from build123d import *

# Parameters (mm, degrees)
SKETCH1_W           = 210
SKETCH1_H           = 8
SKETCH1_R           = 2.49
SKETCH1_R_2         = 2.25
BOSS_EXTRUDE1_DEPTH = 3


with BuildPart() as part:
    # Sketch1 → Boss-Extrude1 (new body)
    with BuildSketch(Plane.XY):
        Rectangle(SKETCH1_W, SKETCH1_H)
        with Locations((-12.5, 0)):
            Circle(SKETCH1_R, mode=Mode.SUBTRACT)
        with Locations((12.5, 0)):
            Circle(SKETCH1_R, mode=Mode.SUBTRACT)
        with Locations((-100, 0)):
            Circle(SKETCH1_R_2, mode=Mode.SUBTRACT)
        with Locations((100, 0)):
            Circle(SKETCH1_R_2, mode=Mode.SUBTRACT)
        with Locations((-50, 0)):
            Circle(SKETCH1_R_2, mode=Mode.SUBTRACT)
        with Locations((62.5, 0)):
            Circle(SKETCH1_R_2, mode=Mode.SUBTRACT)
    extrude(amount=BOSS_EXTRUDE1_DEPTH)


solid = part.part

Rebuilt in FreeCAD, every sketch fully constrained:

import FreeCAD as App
import Part
import Sketcher
from FreeCAD import Vector
Q = App.Units.Quantity


def add_polygon(sketch, points):
    """Adds a closed chain of lines whose ends are joined by coincident constraints."""
    first, n = sketch.GeometryCount, len(points)
    for a, b in zip(points, points[1:] + points[:1]):
        sketch.addGeometry(Part.LineSegment(App.Vector(*a, 0), App.Vector(*b, 0)), False)
    for i in range(n):
        sketch.addConstraint(Sketcher.Constraint("Coincident", first + i, 2, first + (i + 1) % n, 1))

doc = App.newDocument("Part")
body = doc.addObject("PartDesign::Body", "Body")

# Sketch on XY plane
sketch1 = body.newObject("Sketcher::SketchObject", "Sketch")
sketch1.AttachmentSupport = (doc.getObject("XY_Plane"), [""])
sketch1.MapMode = "FlatFace"
add_polygon(sketch1, [(-105, 4), (-105, -4), (105, -4), (105, 4)])  # lines 0-3
sketch1.addGeometry(Part.Circle(Vector(-100, 0, 0), Vector(0, 0, 1), 2.2), False)  # 4
sketch1.addGeometry(Part.Circle(Vector(-50, 0, 0), Vector(0, 0, 1), 2.2), False)  # 5
sketch1.addGeometry(Part.Circle(Vector(-12.5, 0, 0), Vector(0, 0, 1), 2.5), False)  # 6
sketch1.addGeometry(Part.Circle(Vector(12.5, 0, 0), Vector(0, 0, 1), 2.5), False)  # 7
sketch1.addGeometry(Part.Circle(Vector(62.5, 0, 0), Vector(0, 0, 1), 2.2), False)  # 8
sketch1.addGeometry(Part.Circle(Vector(100, 0, 0), Vector(0, 0, 1), 2.2), False)  # 9
sketch1.addConstraint([
    Sketcher.Constraint("Vertical", 0),
    Sketcher.Constraint("Horizontal", 1),
    Sketcher.Constraint("Vertical", 2),
    Sketcher.Constraint("Horizontal", 3),
    Sketcher.Constraint("Equal", 4, 5),
    Sketcher.Constraint("Equal", 6, 7),
    Sketcher.Constraint("Equal", 5, 8),
    Sketcher.Constraint("Equal", 8, 9),
    Sketcher.Constraint("Symmetric", 6, 3, 7, 3, -1, 1),
    Sketcher.Constraint("Symmetric", 4, 3, 9, 3, -1, 1),
    Sketcher.Constraint("Symmetric", 0, 2, 2, 2, -1, 1),
    Sketcher.Constraint("PointOnObject", 4, 3, -1),
    Sketcher.Constraint("PointOnObject", 5, 3, -1),
    Sketcher.Constraint("PointOnObject", 6, 3, -1),
    Sketcher.Constraint("PointOnObject", 8, 3, -1),
    Sketcher.Constraint("Diameter", 4, Q("4.5 mm")),
    Sketcher.Constraint("Diameter", 6, Q("4.98 mm")),
    Sketcher.Constraint("DistanceX", 1, 1, 1, 2, Q("210 mm")),
    Sketcher.Constraint("DistanceY", 0, 2, 0, 1, Q("8 mm")),
    Sketcher.Constraint("DistanceX", 4, 3, -1, 1, Q("100 mm")),
    Sketcher.Constraint("DistanceX", 5, 3, -1, 1, Q("50 mm")),
    Sketcher.Constraint("DistanceX", 6, 3, 7, 3, Q("25 mm")),
    Sketcher.Constraint("DistanceX", 7, 3, 8, 3, Q("50 mm")),
])
pad1 = body.newObject("PartDesign::Pad", "Pad")
pad1.Profile = sketch1
pad1.Length = 3

doc.recompute()
